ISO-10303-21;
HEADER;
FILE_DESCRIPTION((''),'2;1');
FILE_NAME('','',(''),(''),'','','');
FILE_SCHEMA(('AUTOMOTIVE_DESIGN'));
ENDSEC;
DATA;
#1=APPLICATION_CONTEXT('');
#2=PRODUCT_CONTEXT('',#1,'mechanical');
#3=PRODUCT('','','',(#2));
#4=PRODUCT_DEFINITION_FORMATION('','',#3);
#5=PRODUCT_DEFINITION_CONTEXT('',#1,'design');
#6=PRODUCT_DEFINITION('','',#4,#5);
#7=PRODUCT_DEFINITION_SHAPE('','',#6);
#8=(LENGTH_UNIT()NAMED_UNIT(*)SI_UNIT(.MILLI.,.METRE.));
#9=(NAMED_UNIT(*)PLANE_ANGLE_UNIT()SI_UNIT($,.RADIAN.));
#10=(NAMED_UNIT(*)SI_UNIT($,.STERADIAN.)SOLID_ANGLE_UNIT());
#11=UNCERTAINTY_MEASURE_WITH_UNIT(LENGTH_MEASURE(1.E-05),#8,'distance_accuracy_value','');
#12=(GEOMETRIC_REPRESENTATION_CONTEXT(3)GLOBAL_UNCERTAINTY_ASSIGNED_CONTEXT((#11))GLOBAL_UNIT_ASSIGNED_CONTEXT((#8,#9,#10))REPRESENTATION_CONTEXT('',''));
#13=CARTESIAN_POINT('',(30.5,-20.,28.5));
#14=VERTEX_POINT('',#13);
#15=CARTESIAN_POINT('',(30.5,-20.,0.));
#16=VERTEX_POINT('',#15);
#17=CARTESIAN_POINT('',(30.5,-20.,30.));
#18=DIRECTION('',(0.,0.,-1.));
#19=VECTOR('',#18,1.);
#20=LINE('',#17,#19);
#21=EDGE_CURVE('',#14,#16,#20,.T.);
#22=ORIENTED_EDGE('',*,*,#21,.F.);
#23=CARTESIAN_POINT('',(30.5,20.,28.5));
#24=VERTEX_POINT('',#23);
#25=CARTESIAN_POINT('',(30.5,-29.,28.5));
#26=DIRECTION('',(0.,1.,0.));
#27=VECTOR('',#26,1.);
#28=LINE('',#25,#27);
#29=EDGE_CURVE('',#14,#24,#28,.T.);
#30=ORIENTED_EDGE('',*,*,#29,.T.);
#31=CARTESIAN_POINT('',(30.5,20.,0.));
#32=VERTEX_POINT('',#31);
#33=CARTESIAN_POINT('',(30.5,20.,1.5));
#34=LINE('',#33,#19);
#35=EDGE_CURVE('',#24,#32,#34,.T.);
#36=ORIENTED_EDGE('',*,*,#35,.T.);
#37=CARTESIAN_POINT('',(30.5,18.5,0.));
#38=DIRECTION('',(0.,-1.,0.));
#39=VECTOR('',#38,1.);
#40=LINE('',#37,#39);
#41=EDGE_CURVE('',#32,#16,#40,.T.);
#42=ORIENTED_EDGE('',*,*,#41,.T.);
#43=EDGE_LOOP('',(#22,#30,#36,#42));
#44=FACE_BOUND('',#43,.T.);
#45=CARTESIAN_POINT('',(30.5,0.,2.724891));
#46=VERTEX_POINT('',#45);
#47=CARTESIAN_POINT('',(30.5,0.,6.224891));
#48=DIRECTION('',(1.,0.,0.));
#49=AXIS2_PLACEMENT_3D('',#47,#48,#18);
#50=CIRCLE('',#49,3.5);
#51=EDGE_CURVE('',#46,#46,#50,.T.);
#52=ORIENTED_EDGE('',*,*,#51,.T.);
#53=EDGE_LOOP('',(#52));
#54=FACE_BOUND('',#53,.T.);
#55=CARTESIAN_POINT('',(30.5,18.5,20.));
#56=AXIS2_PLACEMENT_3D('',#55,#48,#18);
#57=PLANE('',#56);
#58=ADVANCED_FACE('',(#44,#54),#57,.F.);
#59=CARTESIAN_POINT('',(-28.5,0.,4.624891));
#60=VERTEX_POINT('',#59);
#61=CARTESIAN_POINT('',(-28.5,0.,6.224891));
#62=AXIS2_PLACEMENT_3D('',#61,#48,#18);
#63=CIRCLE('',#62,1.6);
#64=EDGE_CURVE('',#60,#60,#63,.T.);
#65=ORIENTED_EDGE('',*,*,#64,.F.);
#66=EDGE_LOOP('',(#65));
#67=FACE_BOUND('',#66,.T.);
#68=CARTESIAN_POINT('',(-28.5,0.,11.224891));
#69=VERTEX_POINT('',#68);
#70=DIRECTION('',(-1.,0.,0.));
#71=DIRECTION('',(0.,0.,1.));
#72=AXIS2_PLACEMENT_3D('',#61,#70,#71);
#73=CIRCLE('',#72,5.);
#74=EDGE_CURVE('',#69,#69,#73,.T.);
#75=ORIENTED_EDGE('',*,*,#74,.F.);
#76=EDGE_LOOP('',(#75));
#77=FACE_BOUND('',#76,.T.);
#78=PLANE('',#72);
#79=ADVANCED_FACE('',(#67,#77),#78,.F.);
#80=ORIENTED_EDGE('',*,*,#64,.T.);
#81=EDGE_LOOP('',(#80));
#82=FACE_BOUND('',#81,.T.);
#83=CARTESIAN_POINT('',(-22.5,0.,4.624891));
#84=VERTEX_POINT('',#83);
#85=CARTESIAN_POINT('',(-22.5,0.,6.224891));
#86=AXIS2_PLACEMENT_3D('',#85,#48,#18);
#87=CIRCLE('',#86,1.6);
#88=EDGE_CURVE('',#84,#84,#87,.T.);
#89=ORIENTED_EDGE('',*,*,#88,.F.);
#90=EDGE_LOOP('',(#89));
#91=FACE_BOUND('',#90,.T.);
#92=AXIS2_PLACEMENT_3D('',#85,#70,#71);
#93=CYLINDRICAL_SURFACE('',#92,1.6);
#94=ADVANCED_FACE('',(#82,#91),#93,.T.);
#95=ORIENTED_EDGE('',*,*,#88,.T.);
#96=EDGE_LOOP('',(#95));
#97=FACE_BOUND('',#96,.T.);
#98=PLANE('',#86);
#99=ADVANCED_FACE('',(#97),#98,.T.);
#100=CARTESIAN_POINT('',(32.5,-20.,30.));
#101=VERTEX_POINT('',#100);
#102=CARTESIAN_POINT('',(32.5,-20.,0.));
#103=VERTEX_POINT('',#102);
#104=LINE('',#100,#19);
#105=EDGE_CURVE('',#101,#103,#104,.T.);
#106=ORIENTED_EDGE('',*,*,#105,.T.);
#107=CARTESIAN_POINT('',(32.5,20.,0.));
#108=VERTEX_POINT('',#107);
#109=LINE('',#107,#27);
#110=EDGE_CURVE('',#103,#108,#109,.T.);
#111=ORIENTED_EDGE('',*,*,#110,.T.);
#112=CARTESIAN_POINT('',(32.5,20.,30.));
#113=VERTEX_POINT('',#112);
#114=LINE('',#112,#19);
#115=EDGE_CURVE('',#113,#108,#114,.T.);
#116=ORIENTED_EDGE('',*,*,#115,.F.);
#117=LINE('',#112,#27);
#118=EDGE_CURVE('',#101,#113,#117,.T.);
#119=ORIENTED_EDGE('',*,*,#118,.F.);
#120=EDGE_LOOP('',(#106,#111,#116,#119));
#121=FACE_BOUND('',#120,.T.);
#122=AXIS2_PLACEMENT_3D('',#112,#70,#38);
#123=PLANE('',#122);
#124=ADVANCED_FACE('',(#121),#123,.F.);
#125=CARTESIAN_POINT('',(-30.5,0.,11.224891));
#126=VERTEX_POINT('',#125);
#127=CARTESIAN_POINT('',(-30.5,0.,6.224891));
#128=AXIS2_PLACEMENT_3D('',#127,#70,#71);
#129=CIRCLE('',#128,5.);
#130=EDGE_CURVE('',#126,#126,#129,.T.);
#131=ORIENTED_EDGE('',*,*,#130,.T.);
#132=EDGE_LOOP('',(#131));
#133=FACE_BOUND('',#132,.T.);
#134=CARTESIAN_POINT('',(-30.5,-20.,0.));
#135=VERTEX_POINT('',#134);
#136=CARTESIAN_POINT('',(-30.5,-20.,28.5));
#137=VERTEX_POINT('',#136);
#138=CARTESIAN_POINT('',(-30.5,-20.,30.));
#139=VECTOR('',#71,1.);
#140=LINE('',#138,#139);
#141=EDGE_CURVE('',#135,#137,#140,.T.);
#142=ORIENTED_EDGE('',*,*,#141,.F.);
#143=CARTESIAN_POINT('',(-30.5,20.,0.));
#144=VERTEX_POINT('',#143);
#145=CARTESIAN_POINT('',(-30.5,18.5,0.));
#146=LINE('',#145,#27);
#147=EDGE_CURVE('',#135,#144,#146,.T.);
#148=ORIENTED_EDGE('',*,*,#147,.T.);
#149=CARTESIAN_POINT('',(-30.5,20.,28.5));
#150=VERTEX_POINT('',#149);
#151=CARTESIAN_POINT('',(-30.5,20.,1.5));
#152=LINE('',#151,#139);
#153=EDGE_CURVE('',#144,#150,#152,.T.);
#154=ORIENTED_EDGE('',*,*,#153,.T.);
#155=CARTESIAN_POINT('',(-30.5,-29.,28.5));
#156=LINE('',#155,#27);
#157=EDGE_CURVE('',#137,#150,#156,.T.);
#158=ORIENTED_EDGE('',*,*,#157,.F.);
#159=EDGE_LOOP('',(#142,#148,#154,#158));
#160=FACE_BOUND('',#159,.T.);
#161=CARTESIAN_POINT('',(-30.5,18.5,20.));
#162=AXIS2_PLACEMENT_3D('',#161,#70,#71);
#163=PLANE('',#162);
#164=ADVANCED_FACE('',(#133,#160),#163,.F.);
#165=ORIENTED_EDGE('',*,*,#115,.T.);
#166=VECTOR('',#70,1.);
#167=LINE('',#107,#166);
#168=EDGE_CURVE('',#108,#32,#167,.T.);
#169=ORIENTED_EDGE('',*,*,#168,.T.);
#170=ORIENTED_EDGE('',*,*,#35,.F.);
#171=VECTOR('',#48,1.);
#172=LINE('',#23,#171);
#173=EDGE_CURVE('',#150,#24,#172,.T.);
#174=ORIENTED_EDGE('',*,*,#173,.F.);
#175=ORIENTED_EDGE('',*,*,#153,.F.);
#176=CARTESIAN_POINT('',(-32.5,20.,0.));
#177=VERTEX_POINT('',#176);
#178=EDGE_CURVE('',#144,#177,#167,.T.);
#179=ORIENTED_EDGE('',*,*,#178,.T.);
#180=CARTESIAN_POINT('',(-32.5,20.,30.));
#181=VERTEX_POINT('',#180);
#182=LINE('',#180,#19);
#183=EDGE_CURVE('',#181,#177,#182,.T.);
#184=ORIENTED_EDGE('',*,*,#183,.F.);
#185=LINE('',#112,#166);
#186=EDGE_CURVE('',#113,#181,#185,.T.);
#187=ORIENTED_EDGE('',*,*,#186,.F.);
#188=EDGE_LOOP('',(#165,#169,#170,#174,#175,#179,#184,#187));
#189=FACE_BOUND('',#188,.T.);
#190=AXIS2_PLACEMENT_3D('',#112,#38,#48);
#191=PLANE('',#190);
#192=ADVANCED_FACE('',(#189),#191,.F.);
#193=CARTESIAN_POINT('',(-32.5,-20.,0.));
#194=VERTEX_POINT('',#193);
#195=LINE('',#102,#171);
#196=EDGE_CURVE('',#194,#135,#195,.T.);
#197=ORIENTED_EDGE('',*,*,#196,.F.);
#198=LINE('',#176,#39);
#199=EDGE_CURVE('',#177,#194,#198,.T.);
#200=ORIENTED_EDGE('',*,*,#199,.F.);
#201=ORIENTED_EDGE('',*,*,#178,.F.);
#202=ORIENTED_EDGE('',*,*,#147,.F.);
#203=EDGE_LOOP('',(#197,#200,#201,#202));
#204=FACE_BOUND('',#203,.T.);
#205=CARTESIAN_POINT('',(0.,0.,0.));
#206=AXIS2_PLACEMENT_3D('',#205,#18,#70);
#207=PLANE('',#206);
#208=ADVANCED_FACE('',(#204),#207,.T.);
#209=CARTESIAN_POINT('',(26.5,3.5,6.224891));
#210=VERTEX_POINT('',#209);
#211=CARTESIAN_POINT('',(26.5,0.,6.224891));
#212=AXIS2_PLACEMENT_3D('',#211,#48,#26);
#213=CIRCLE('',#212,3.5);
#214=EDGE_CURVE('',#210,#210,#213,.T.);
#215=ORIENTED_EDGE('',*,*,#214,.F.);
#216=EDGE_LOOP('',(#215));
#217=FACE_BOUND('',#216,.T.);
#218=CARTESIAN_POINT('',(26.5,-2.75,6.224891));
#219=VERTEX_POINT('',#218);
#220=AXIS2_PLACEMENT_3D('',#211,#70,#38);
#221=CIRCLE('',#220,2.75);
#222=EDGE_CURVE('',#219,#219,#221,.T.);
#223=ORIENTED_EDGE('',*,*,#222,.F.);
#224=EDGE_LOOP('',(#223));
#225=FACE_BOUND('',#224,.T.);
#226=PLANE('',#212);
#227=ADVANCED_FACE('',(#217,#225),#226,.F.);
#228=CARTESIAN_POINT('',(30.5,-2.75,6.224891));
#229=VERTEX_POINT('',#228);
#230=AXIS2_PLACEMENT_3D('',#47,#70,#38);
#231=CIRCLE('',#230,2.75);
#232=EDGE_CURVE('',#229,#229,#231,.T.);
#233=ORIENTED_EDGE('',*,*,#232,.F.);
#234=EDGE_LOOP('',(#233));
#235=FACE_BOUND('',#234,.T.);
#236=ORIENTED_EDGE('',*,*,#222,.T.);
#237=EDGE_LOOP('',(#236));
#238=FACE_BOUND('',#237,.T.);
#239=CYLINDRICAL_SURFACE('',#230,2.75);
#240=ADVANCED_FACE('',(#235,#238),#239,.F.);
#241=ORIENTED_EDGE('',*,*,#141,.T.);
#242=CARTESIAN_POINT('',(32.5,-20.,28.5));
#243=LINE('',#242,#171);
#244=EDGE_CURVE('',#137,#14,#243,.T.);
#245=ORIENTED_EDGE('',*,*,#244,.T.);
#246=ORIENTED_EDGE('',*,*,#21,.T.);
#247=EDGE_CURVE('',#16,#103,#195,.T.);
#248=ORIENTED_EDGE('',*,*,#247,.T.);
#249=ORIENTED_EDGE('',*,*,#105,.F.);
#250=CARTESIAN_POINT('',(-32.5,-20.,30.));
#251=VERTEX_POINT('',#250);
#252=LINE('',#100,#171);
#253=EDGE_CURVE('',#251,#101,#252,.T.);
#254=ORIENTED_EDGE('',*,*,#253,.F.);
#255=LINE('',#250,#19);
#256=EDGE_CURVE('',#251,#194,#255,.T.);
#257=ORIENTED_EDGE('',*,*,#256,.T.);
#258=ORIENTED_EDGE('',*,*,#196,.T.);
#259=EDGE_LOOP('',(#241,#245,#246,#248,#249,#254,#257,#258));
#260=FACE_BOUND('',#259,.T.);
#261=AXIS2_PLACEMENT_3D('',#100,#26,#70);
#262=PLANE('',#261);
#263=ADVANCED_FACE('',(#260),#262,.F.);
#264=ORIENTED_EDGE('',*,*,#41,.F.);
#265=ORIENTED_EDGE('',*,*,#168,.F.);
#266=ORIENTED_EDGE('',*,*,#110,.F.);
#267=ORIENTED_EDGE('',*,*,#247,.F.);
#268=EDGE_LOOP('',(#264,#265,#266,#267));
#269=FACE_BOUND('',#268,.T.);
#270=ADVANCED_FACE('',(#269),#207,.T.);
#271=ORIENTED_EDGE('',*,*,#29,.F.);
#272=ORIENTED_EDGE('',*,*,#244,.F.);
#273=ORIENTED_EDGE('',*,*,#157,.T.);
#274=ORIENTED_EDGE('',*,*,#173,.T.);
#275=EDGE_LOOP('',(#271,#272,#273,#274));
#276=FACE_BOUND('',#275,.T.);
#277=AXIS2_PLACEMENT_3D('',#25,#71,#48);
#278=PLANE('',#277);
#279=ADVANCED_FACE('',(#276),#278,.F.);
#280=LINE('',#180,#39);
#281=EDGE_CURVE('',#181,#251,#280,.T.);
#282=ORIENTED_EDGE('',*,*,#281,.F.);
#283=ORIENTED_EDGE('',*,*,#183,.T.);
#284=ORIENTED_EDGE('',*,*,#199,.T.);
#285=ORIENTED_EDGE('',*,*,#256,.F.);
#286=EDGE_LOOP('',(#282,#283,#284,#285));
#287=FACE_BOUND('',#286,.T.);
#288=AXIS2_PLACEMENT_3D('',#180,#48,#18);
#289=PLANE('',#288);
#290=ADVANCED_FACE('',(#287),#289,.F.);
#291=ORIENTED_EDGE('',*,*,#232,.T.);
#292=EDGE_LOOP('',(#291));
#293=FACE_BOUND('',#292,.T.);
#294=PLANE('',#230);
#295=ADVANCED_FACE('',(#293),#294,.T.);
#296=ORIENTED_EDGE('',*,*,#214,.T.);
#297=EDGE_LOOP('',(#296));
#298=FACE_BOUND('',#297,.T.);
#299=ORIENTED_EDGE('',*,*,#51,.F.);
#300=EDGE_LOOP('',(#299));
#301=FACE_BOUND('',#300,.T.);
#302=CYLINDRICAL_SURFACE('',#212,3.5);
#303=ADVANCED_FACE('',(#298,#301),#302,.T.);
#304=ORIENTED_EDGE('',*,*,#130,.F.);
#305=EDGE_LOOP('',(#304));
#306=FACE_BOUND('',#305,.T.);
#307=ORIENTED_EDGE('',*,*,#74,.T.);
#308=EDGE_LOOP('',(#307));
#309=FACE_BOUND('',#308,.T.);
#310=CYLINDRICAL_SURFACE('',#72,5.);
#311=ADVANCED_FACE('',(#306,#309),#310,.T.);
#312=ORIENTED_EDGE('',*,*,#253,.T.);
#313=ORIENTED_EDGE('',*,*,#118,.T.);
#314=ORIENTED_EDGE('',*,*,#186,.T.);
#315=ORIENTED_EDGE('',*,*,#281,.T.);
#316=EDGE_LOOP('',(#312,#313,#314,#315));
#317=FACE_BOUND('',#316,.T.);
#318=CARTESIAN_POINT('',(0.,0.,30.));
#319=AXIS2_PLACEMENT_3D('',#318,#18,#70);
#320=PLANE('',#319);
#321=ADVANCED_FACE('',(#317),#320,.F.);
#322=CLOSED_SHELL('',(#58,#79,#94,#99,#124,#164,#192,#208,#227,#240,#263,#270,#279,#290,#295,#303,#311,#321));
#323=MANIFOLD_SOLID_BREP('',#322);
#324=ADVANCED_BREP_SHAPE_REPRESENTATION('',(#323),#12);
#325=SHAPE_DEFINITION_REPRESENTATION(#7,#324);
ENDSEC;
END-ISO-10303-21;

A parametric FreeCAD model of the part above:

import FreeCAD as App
import Part
import Sketcher
from FreeCAD import Vector


def add_polygon(sketch, points):
    """Adds a closed chain of lines whose ends are joined by coincident constraints."""
    first, n = sketch.GeometryCount, len(points)
    for a, b in zip(points, points[1:] + points[:1]):
        sketch.addGeometry(Part.LineSegment(App.Vector(*a, 0), App.Vector(*b, 0)), False)
    for i in range(n):
        sketch.addConstraint(Sketcher.Constraint("Coincident", first + i, 2, first + (i + 1) % n, 1))

doc = App.newDocument("Part")
body = doc.addObject("PartDesign::Body", "Body")

# Sketch on XY plane
sketch1 = body.newObject("Sketcher::SketchObject", "Sketch")
sketch1.AttachmentSupport = (doc.getObject("XY_Plane"), [""])
sketch1.MapMode = "FlatFace"
add_polygon(sketch1, [(-32, 20), (-32, -20), (32, -20), (32, 20)])  # lines 0-3
sketch1.addConstraint(Sketcher.Constraint("Vertical", 0))
sketch1.addConstraint(Sketcher.Constraint("Horizontal", 1))
sketch1.addConstraint(Sketcher.Constraint("Vertical", 2))
sketch1.addConstraint(Sketcher.Constraint("Horizontal", 3))
sketch1.addConstraint(Sketcher.Constraint("Symmetric", 0, 2, 2, 2, -1, 1))
sketch1.addConstraint(Sketcher.Constraint("DistanceX", 1, 1, 1, 2, 65.0))
sketch1.addConstraint(Sketcher.Constraint("DistanceY", 0, 2, 0, 1, 40.0))
pad1 = body.newObject("PartDesign::Pad", "Pad")
pad1.Profile = sketch1
pad1.Length = 30

# Sketch on XY plane
sketch2 = body.newObject("Sketcher::SketchObject", "Sketch001")
sketch2.AttachmentSupport = (doc.getObject("XY_Plane"), [""])
sketch2.MapMode = "FlatFace"
add_polygon(sketch2, [(30, 18), (30, -18), (-30, -18), (-30, 18)])  # lines 0-3
sketch2.addConstraint(Sketcher.Constraint("Vertical", 0))
sketch2.addConstraint(Sketcher.Constraint("Horizontal", 1))
sketch2.addConstraint(Sketcher.Constraint("Vertical", 2))
sketch2.addConstraint(Sketcher.Constraint("Horizontal", 3))
sketch2.addConstraint(Sketcher.Constraint("Symmetric", 0, 2, 2, 2, -1, 1))
sketch2.addConstraint(Sketcher.Constraint("DistanceX", 1, 2, 1, 1, 61.0))
sketch2.addConstraint(Sketcher.Constraint("DistanceY", 0, 2, 0, 1, 37.0))
pocket1 = body.newObject("PartDesign::Pocket", "Pocket")
pocket1.Profile = sketch2
pocket1.Length = 20
pocket1.Reversed = True

# Sketch on XZ plane
sketch3 = body.newObject("Sketcher::SketchObject", "Sketch002")
sketch3.AttachmentSupport = (doc.getObject("XZ_Plane"), [""])
sketch3.MapMode = "FlatFace"
sketch3.AttachmentOffset = App.Placement(Vector(0, 0, -20), App.Rotation())
add_polygon(sketch3, [(-30, 2), (-30, 28), (30, 28), (30, 2)])  # lines 0-3
sketch3.addConstraint(Sketcher.Constraint("Vertical", 0))
sketch3.addConstraint(Sketcher.Constraint("Horizontal", 1))
sketch3.addConstraint(Sketcher.Constraint("Vertical", 2))
sketch3.addConstraint(Sketcher.Constraint("Horizontal", 3))
sketch3.addConstraint(Sketcher.Constraint("DistanceX", 1, 1, 1, 2, 61.0))
sketch3.addConstraint(Sketcher.Constraint("DistanceY", 0, 1, 0, 2, 27.0))
sketch3.addConstraint(Sketcher.Constraint("DistanceX", 0, 2, -1, 1, 30.5))
sketch3.addConstraint(Sketcher.Constraint("DistanceY", -1, 1, 0, 2, 28.5))
pocket2 = body.newObject("PartDesign::Pocket", "Pocket001")
pocket2.Profile = sketch3
pocket2.Length = 49
pocket2.Reversed = True

# Sketch on XZ plane
sketch4 = body.newObject("Sketcher::SketchObject", "Sketch003")
sketch4.AttachmentSupport = (doc.getObject("XZ_Plane"), [""])
sketch4.MapMode = "FlatFace"
sketch4.AttachmentOffset = App.Placement(Vector(0, 0, -20), App.Rotation())
add_polygon(sketch4, [(-30.5, 0), (-30.5, 1.5), (30.5, 1.5), (30.5, 0)])  # lines 0-3
sketch4.addConstraint(Sketcher.Constraint("Vertical", 0))
sketch4.addConstraint(Sketcher.Constraint("Horizontal", 1))
sketch4.addConstraint(Sketcher.Constraint("Vertical", 2))
sketch4.addConstraint(Sketcher.Constraint("Horizontal", 3))
sketch4.addConstraint(Sketcher.Constraint("Symmetric", 2, 2, 3, 2, -1, 1))
sketch4.addConstraint(Sketcher.Constraint("DistanceX", 1, 1, 1, 2, 61.0))
sketch4.addConstraint(Sketcher.Constraint("DistanceY", 0, 1, 0, 2, 1.5))
pocket3 = body.newObject("PartDesign::Pocket", "Pocket002")
pocket3.Profile = sketch4
pocket3.Length = 49
pocket3.Reversed = True

# Sketch on YZ plane
sketch5 = body.newObject("Sketcher::SketchObject", "Sketch004")
sketch5.AttachmentSupport = (doc.getObject("YZ_Plane"), [""])
sketch5.MapMode = "FlatFace"
sketch5.AttachmentOffset = App.Placement(Vector(0, 0, -32.5), App.Rotation())
sketch5.addGeometry(Part.Circle(Vector(0, 6, 0), Vector(0, 0, 1), 5), False)
sketch5.addConstraint(Sketcher.Constraint("PointOnObject", 0, 3, -2))
sketch5.addConstraint(Sketcher.Constraint("Diameter", 0, 10.0))
sketch5.addConstraint(Sketcher.Constraint("DistanceY", -1, 1, 0, 3, 6.224891))
pad2 = body.newObject("PartDesign::Pad", "Pad001")
pad2.Profile = sketch5
pad2.Length = 4

# Sketch on YZ plane
sketch6 = body.newObject("Sketcher::SketchObject", "Sketch005")
sketch6.AttachmentSupport = (doc.getObject("YZ_Plane"), [""])
sketch6.MapMode = "FlatFace"
sketch6.AttachmentOffset = App.Placement(Vector(0, 0, -28.5), App.Rotation())
sketch6.addGeometry(Part.Circle(Vector(0, 6.2, 0), Vector(0, 0, 1), 1.6), False)
sketch6.addConstraint(Sketcher.Constraint("PointOnObject", 0, 3, -2))
sketch6.addConstraint(Sketcher.Constraint("Diameter", 0, 3.2))
sketch6.addConstraint(Sketcher.Constraint("DistanceY", -1, 1, 0, 3, 6.224891))
pad3 = body.newObject("PartDesign::Pad", "Pad002")
pad3.Profile = sketch6
pad3.Length = 6

# Sketch on YZ plane
sketch7 = body.newObject("Sketcher::SketchObject", "Sketch006")
sketch7.AttachmentSupport = (doc.getObject("YZ_Plane"), [""])
sketch7.MapMode = "FlatFace"
sketch7.AttachmentOffset = App.Placement(Vector(0, 0, 32.5), App.Rotation())
sketch7.addGeometry(Part.Circle(Vector(0, 6.2, 0), Vector(0, 0, 1), 3.5), False)
sketch7.addConstraint(Sketcher.Constraint("PointOnObject", 0, 3, -2))
sketch7.addConstraint(Sketcher.Constraint("Diameter", 0, 7.0))
sketch7.addConstraint(Sketcher.Constraint("DistanceY", -1, 1, 0, 3, 6.224891))
pad4 = body.newObject("PartDesign::Pad", "Pad003")
pad4.Profile = sketch7
pad4.Length = 6
pad4.Reversed = True

# Sketch on YZ plane
sketch8 = body.newObject("Sketcher::SketchObject", "Sketch007")
sketch8.AttachmentSupport = (doc.getObject("YZ_Plane"), [""])
sketch8.MapMode = "FlatFace"
sketch8.AttachmentOffset = App.Placement(Vector(0, 0, 26.5), App.Rotation())
sketch8.addGeometry(Part.Circle(Vector(0, 6.2, 0), Vector(0, 0, 1), 2.8), False)
sketch8.addConstraint(Sketcher.Constraint("PointOnObject", 0, 3, -2))
sketch8.addConstraint(Sketcher.Constraint("Diameter", 0, 5.5))
sketch8.addConstraint(Sketcher.Constraint("DistanceY", -1, 1, 0, 3, 6.224891))
pocket4 = body.newObject("PartDesign::Pocket", "Pocket003")
pocket4.Profile = sketch8
pocket4.Length = 4
pocket4.Reversed = True

doc.recompute()
